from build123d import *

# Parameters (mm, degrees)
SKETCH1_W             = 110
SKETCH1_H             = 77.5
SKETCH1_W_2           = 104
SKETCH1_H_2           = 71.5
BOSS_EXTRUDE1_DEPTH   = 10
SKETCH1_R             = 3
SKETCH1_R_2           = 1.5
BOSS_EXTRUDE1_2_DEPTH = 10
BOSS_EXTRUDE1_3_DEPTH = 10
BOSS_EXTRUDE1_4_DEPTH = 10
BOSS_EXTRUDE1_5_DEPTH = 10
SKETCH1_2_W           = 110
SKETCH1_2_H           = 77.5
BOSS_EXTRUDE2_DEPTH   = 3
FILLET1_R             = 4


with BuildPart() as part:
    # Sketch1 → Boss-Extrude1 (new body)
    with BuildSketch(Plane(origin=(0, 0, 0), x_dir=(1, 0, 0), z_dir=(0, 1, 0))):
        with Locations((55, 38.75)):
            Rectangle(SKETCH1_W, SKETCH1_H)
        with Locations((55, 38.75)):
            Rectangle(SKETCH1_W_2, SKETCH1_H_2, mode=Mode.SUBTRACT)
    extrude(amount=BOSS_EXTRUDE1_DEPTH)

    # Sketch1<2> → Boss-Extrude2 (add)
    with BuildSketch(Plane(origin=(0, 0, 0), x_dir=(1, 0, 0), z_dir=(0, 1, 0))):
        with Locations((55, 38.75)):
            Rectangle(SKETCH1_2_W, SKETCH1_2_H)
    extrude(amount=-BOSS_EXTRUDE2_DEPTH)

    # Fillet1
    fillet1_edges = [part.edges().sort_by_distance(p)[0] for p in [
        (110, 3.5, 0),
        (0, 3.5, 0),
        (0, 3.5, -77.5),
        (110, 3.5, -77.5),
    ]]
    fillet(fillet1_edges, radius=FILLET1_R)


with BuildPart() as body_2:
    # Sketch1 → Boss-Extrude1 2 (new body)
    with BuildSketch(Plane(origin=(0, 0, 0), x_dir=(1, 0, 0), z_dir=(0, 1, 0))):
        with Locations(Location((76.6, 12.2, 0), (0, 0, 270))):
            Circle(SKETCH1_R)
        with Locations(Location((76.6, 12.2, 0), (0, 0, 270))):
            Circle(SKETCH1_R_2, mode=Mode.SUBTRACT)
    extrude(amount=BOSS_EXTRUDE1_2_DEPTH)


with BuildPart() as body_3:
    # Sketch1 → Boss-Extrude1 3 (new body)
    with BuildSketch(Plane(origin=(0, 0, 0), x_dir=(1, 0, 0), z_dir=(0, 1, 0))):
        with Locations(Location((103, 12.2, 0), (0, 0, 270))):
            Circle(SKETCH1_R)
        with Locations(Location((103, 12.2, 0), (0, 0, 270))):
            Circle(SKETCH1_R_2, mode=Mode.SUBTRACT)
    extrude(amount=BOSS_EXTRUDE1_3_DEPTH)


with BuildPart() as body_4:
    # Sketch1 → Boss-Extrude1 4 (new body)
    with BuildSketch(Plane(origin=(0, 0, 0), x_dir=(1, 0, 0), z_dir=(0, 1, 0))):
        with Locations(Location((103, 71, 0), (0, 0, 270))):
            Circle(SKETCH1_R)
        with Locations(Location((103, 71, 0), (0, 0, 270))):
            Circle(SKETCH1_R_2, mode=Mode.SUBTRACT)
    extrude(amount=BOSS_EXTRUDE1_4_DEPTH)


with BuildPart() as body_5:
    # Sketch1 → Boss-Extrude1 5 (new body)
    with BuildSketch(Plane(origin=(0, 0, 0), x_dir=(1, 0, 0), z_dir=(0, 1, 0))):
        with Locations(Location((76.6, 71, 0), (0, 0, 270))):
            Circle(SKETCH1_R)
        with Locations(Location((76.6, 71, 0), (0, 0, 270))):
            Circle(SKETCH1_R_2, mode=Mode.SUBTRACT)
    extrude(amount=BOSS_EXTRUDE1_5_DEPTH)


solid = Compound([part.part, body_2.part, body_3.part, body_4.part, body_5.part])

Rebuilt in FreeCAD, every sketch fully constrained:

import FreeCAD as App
import Part
import Sketcher
from FreeCAD import Vector
Q = App.Units.Quantity


def edges_at(feature, points):
    """Names of the edges that pass closest to the given points."""
    edges = feature.Shape.Edges
    near = lambda p: min(range(len(edges)), key=lambda i: edges[i].distToShape(Part.Vertex(*p))[0])
    return sorted({f"Edge{near(p) + 1}" for p in points})

doc = App.newDocument("Part")
body = doc.addObject("PartDesign::Body", "Body")

# Sketch on XZ plane
sketch1 = body.newObject("Sketcher::SketchObject", "Sketch")
sketch1.AttachmentSupport = (doc.getObject("XZ_Plane"), [""])
sketch1.MapMode = "FlatFace"
sketch1.addGeometry(Part.LineSegment(Vector(0, -78, 0), Vector(0, 0, 0)), False)
sketch1.addGeometry(Part.LineSegment(Vector(0, 0, 0), Vector(110, 0, 0)), False)
sketch1.addGeometry(Part.LineSegment(Vector(110, 0, 0), Vector(110, -78, 0)), False)
sketch1.addGeometry(Part.LineSegment(Vector(110, -78, 0), Vector(0, -78, 0)), False)
sketch1.addGeometry(Part.LineSegment(Vector(107, -3, 0), Vector(3, -3, 0)), False)
sketch1.addGeometry(Part.LineSegment(Vector(3, -3, 0), Vector(3, -74, 0)), False)
sketch1.addGeometry(Part.LineSegment(Vector(3, -74, 0), Vector(107, -74, 0)), False)
sketch1.addGeometry(Part.LineSegment(Vector(107, -74, 0), Vector(107, -3, 0)), False)
sketch1.addConstraint(Sketcher.Constraint("Coincident", 0, 2, 1, 1))
sketch1.addConstraint(Sketcher.Constraint("Coincident", 1, 2, 2, 1))
sketch1.addConstraint(Sketcher.Constraint("Coincident", 2, 2, 3, 1))
sketch1.addConstraint(Sketcher.Constraint("Coincident", 3, 2, 0, 1))
sketch1.addConstraint(Sketcher.Constraint("Coincident", 4, 2, 5, 1))
sketch1.addConstraint(Sketcher.Constraint("Coincident", 5, 2, 6, 1))
sketch1.addConstraint(Sketcher.Constraint("Coincident", 6, 2, 7, 1))
sketch1.addConstraint(Sketcher.Constraint("Coincident", 7, 2, 4, 1))
sketch1.addConstraint(Sketcher.Constraint("Vertical", 0))
sketch1.addConstraint(Sketcher.Constraint("Horizontal", 1))
sketch1.addConstraint(Sketcher.Constraint("Vertical", 2))
sketch1.addConstraint(Sketcher.Constraint("Horizontal", 3))
sketch1.addConstraint(Sketcher.Constraint("Horizontal", 4))
sketch1.addConstraint(Sketcher.Constraint("Vertical", 5))
sketch1.addConstraint(Sketcher.Constraint("Horizontal", 6))
sketch1.addConstraint(Sketcher.Constraint("Vertical", 7))
sketch1.addConstraint(Sketcher.Constraint("Coincident", 0, 2, -1, 1))
sketch1.addConstraint(Sketcher.Constraint("DistanceX", 1, 1, 1, 2, Q("110 mm")))
sketch1.addConstraint(Sketcher.Constraint("DistanceX", 4, 2, 4, 1, Q("104 mm")))
sketch1.addConstraint(Sketcher.Constraint("DistanceY", 0, 1, 0, 2, Q("77.5 mm")))
sketch1.addConstraint(Sketcher.Constraint("DistanceY", 5, 2, 5, 1, Q("71.5 mm")))
sketch1.addConstraint(Sketcher.Constraint("DistanceX", -1, 1, 4, 2, Q("3 mm")))
sketch1.addConstraint(Sketcher.Constraint("DistanceY", 4, 2, -1, 1, Q("3 mm")))
pad1 = body.newObject("PartDesign::Pad", "Pad")
pad1.Profile = sketch1
pad1.Length = 10
pad1.Reversed = True

# Sketch on XZ plane
sketch2 = body.newObject("Sketcher::SketchObject", "Sketch001")
sketch2.AttachmentSupport = (doc.getObject("XZ_Plane"), [""])
sketch2.MapMode = "FlatFace"
sketch2.addGeometry(Part.LineSegment(Vector(0, -78, 0), Vector(0, 0, 0)), False)
sketch2.addGeometry(Part.LineSegment(Vector(0, 0, 0), Vector(110, 0, 0)), False)
sketch2.addGeometry(Part.LineSegment(Vector(110, 0, 0), Vector(110, -78, 0)), False)
sketch2.addGeometry(Part.LineSegment(Vector(110, -78, 0), Vector(0, -78, 0)), False)
sketch2.addConstraint(Sketcher.Constraint("Coincident", 0, 2, 1, 1))
sketch2.addConstraint(Sketcher.Constraint("Coincident", 1, 2, 2, 1))
sketch2.addConstraint(Sketcher.Constraint("Coincident", 2, 2, 3, 1))
sketch2.addConstraint(Sketcher.Constraint("Coincident", 3, 2, 0, 1))
sketch2.addConstraint(Sketcher.Constraint("Vertical", 0))
sketch2.addConstraint(Sketcher.Constraint("Horizontal", 1))
sketch2.addConstraint(Sketcher.Constraint("Vertical", 2))
sketch2.addConstraint(Sketcher.Constraint("Horizontal", 3))
sketch2.addConstraint(Sketcher.Constraint("Coincident", 0, 2, -1, 1))
sketch2.addConstraint(Sketcher.Constraint("DistanceX", 1, 1, 1, 2, Q("110 mm")))
sketch2.addConstraint(Sketcher.Constraint("DistanceY", 0, 1, 0, 2, Q("77.5 mm")))
pad2 = body.newObject("PartDesign::Pad", "Pad001")
pad2.Profile = sketch2
pad2.Length = 3
doc.recompute()

fillet = body.newObject("PartDesign::Fillet", "Fillet")
fillet.Base = (pad2, edges_at(pad2, [
    (110, 3.5, 0),
    (0, 3.5, 0),
    (0, 3.5, -77.5),
    (110, 3.5, -77.5),
]))
fillet.Radius = 4
body2 = doc.addObject("PartDesign::Body", "Body001")

# Sketch on XZ plane
sketch3 = body2.newObject("Sketcher::SketchObject", "Sketch002")
sketch3.AttachmentSupport = (doc.getObject("XZ_Plane001"), [""])
sketch3.MapMode = "FlatFace"
sketch3.addGeometry(Part.Circle(Vector(76.6, -12.2, 0), Vector(0, 0, 1), 3), False)
sketch3.addGeometry(Part.Circle(Vector(76.6, -12.2, 0), Vector(0, 0, 1), 1.5), False)
sketch3.addConstraint(Sketcher.Constraint("Coincident", 1, 3, 0, 3))
sketch3.addConstraint(Sketcher.Constraint("Diameter", 0, Q("6 mm")))
sketch3.addConstraint(Sketcher.Constraint("Diameter", 1, Q("3 mm")))
sketch3.addConstraint(Sketcher.Constraint("DistanceX", -1, 1, 0, 3, Q("76.6 mm")))
sketch3.addConstraint(Sketcher.Constraint("DistanceY", 0, 3, -1, 1, Q("12.2 mm")))
pad3 = body2.newObject("PartDesign::Pad", "Pad002")
pad3.Profile = sketch3
pad3.Length = 10
pad3.Reversed = True
body3 = doc.addObject("PartDesign::Body", "Body002")

# Sketch on XZ plane
sketch4 = body3.newObject("Sketcher::SketchObject", "Sketch003")
sketch4.AttachmentSupport = (doc.getObject("XZ_Plane002"), [""])
sketch4.MapMode = "FlatFace"
sketch4.addGeometry(Part.Circle(Vector(103, -12.2, 0), Vector(0, 0, 1), 3), False)
sketch4.addGeometry(Part.Circle(Vector(103, -12.2, 0), Vector(0, 0, 1), 1.5), False)
sketch4.addConstraint(Sketcher.Constraint("Coincident", 1, 3, 0, 3))
sketch4.addConstraint(Sketcher.Constraint("Diameter", 0, Q("6 mm")))
sketch4.addConstraint(Sketcher.Constraint("Diameter", 1, Q("3 mm")))
sketch4.addConstraint(Sketcher.Constraint("DistanceX", -1, 1, 0, 3, Q("103 mm")))
sketch4.addConstraint(Sketcher.Constraint("DistanceY", 0, 3, -1, 1, Q("12.2 mm")))
pad4 = body3.newObject("PartDesign::Pad", "Pad003")
pad4.Profile = sketch4
pad4.Length = 10
pad4.Reversed = True
body4 = doc.addObject("PartDesign::Body", "Body003")

# Sketch on XZ plane
sketch5 = body4.newObject("Sketcher::SketchObject", "Sketch004")
sketch5.AttachmentSupport = (doc.getObject("XZ_Plane003"), [""])
sketch5.MapMode = "FlatFace"
sketch5.addGeometry(Part.Circle(Vector(103, -71, 0), Vector(0, 0, 1), 3), False)
sketch5.addGeometry(Part.Circle(Vector(103, -71, 0), Vector(0, 0, 1), 1.5), False)
sketch5.addConstraint(Sketcher.Constraint("Coincident", 1, 3, 0, 3))
sketch5.addConstraint(Sketcher.Constraint("Diameter", 0, Q("6 mm")))
sketch5.addConstraint(Sketcher.Constraint("Diameter", 1, Q("3 mm")))
sketch5.addConstraint(Sketcher.Constraint("DistanceX", -1, 1, 0, 3, Q("103 mm")))
sketch5.addConstraint(Sketcher.Constraint("DistanceY", 0, 3, -1, 1, Q("71 mm")))
pad5 = body4.newObject("PartDesign::Pad", "Pad004")
pad5.Profile = sketch5
pad5.Length = 10
pad5.Reversed = True
body5 = doc.addObject("PartDesign::Body", "Body004")

# Sketch on XZ plane
sketch6 = body5.newObject("Sketcher::SketchObject", "Sketch005")
sketch6.AttachmentSupport = (doc.getObject("XZ_Plane004"), [""])
sketch6.MapMode = "FlatFace"
sketch6.addGeometry(Part.Circle(Vector(76.6, -71, 0), Vector(0, 0, 1), 3), False)
sketch6.addGeometry(Part.Circle(Vector(76.6, -71, 0), Vector(0, 0, 1), 1.5), False)
sketch6.addConstraint(Sketcher.Constraint("Coincident", 1, 3, 0, 3))
sketch6.addConstraint(Sketcher.Constraint("Diameter", 0, Q("6 mm")))
sketch6.addConstraint(Sketcher.Constraint("Diameter", 1, Q("3 mm")))
sketch6.addConstraint(Sketcher.Constraint("DistanceY", 0, 3, -1, 1, Q("71 mm")))
sketch6.addConstraint(Sketcher.Constraint("DistanceX", -1, 1, 0, 3, Q("76.6 mm")))
pad6 = body5.newObject("PartDesign::Pad", "Pad005")
pad6.Profile = sketch6
pad6.Length = 10
pad6.Reversed = True

doc.recompute()
